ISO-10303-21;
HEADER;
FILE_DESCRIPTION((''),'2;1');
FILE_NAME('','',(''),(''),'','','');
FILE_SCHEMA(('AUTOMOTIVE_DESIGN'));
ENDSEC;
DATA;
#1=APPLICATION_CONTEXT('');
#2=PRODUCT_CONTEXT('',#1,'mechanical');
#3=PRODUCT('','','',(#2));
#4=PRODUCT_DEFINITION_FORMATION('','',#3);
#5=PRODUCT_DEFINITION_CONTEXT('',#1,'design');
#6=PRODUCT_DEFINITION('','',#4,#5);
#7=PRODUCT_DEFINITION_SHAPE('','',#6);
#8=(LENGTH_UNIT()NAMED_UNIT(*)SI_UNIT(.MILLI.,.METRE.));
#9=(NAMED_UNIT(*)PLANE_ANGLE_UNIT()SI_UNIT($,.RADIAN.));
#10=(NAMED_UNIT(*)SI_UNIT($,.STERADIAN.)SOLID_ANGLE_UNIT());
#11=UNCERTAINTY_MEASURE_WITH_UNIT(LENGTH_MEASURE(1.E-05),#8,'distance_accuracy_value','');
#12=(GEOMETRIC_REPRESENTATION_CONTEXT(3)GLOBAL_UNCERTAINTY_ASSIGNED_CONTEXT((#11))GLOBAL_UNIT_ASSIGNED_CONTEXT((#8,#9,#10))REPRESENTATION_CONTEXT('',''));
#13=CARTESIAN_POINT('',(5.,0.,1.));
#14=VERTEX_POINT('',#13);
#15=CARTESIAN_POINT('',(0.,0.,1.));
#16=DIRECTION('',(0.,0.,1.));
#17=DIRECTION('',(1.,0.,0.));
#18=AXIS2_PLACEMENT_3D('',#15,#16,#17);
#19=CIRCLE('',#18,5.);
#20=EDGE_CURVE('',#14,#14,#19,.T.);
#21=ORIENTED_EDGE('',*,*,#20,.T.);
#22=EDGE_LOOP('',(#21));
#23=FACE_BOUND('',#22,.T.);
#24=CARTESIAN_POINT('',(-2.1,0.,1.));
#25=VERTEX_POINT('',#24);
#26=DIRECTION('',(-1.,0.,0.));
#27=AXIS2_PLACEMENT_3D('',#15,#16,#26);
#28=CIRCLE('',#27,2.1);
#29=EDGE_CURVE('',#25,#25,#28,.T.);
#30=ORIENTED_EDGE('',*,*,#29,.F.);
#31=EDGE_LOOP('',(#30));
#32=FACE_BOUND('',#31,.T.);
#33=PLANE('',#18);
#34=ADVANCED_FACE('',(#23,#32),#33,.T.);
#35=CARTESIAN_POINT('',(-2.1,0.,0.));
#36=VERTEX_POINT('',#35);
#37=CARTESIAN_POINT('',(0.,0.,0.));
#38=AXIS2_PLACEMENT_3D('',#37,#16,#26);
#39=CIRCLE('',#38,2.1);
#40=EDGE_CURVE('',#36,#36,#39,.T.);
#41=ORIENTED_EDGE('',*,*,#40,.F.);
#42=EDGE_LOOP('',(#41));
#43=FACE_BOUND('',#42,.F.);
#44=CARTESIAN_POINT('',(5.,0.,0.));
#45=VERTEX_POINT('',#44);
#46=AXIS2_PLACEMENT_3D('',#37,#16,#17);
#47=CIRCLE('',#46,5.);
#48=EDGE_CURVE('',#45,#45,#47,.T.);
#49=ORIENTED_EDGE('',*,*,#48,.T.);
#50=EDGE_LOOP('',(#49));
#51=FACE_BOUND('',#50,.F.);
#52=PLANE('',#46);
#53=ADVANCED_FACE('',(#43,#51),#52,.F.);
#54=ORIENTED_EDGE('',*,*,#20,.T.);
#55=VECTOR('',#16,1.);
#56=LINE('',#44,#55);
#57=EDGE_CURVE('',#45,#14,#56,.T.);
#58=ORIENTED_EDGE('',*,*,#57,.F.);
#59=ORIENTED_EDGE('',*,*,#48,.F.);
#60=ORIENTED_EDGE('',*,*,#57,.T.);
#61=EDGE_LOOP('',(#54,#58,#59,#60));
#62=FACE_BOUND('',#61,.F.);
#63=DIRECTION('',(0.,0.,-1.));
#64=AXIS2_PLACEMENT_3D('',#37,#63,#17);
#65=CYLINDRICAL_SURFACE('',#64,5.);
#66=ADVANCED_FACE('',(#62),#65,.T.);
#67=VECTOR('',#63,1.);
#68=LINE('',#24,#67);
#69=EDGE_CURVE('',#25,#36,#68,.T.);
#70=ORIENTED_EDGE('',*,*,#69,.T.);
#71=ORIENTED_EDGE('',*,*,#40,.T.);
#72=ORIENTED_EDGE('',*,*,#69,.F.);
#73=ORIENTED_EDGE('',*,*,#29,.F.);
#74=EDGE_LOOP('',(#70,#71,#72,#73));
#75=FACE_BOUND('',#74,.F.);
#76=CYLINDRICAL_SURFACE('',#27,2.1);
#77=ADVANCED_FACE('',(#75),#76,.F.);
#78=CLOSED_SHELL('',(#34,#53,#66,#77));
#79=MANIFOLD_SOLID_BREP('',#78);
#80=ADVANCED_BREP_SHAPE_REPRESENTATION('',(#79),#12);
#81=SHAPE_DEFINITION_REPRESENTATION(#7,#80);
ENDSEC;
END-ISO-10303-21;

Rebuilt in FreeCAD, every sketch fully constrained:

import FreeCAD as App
import Part
import Sketcher

V = App.Vector
Q = App.Units.Quantity

doc = App.newDocument("Part")
body = doc.addObject("PartDesign::Body", "Body")

# Sketch on XY plane
sketch1 = body.newObject("Sketcher::SketchObject", "Sketch")
sketch1.AttachmentSupport = (doc.getObject("XY_Plane"), [""])
sketch1.MapMode = "FlatFace"
sketch1.addGeometry(Part.Circle(V(0, 0, 0), V(0, 0, 1), 5), False)
sketch1.addConstraint(Sketcher.Constraint("Coincident", 0, 3, -1, 1))
sketch1.addConstraint(Sketcher.Constraint("Diameter", 0, Q("10 mm")))
pad1 = body.newObject("PartDesign::Pad", "Pad")
pad1.Profile = sketch1
pad1.Length = 1

# Sketch on XY plane
sketch2 = body.newObject("Sketcher::SketchObject", "Sketch001")
sketch2.AttachmentSupport = (doc.getObject("XY_Plane"), [""])
sketch2.MapMode = "FlatFace"
sketch2.AttachmentOffset = App.Placement(V(0, 0, 1), App.Rotation())
sketch2.addGeometry(Part.Circle(V(0, 0, 0), V(0, 0, 1), 2.1), False)
sketch2.addConstraint(Sketcher.Constraint("Coincident", 0, 3, -1, 1))
sketch2.addConstraint(Sketcher.Constraint("Diameter", 0, Q("4.2 mm")))
pocket1 = body.newObject("PartDesign::Pocket", "Pocket")
pocket1.Profile = sketch2
pocket1.Length = 5

doc.recompute()
